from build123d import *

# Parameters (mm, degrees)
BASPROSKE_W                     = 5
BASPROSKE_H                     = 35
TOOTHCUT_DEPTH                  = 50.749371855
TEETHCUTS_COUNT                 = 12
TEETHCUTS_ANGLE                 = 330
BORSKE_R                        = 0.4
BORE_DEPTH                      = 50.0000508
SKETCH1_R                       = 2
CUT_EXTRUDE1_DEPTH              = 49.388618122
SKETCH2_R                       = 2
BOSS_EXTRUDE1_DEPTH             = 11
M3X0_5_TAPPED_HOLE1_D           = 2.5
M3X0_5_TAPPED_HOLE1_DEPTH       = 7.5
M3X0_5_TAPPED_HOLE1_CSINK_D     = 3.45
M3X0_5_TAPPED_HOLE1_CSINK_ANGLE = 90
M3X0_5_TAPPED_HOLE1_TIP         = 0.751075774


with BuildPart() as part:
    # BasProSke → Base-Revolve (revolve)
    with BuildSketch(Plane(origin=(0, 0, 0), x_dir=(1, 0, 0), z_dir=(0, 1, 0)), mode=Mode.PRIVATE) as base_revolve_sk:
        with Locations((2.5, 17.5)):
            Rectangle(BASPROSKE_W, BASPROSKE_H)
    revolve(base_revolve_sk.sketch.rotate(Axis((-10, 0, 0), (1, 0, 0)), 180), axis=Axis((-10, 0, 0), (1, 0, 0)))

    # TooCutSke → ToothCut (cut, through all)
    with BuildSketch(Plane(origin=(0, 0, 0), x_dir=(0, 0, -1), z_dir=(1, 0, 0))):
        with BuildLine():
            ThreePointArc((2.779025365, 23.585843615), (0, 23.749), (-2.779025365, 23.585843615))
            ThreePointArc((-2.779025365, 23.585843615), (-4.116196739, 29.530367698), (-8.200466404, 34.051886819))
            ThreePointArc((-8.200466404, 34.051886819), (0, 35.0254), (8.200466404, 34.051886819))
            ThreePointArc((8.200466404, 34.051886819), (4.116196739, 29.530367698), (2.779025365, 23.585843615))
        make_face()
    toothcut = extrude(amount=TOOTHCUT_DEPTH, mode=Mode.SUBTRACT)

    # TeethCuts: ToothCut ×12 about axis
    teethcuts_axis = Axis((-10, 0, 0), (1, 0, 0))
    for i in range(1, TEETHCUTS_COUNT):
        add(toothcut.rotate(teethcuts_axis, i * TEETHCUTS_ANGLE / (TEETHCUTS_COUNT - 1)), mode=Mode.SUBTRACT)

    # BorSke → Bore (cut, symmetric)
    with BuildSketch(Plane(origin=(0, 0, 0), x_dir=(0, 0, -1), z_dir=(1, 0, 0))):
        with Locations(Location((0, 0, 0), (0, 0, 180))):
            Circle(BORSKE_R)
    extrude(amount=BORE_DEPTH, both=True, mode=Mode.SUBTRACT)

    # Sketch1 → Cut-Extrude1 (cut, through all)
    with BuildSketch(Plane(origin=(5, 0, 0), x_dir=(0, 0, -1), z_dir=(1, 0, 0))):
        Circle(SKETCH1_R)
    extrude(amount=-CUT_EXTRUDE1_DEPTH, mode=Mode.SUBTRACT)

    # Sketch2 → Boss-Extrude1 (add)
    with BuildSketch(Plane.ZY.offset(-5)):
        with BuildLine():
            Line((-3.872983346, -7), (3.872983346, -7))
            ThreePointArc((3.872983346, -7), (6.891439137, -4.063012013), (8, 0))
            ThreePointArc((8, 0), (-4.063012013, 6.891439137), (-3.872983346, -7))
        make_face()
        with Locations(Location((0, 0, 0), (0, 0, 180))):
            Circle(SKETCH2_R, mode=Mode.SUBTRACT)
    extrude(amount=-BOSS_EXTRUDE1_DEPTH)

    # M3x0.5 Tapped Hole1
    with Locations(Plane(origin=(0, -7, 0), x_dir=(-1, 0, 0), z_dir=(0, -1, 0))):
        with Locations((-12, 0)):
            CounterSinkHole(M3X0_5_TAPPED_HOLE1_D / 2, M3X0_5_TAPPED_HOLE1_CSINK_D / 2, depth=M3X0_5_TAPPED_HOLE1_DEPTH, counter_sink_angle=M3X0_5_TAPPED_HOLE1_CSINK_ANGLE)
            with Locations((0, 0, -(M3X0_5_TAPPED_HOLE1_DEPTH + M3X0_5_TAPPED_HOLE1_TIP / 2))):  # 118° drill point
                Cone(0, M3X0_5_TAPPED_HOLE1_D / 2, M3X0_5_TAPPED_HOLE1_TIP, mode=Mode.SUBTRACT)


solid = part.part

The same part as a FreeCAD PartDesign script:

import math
import FreeCAD as App
import Part
import Sketcher


def add_polygon(sketch, points):
    """Adds a closed chain of lines whose ends are joined by coincident constraints."""
    first, n = sketch.GeometryCount, len(points)
    for a, b in zip(points, points[1:] + points[:1]):
        sketch.addGeometry(Part.LineSegment(App.Vector(*a, 0), App.Vector(*b, 0)), False)
    for i in range(n):
        sketch.addConstraint(Sketcher.Constraint("Coincident", first + i, 2, first + (i + 1) % n, 1))

doc = App.newDocument("Part")
params = doc.addObject("Spreadsheet::Sheet", "Params")
for row, (alias, value) in enumerate([
    ("sketch1_width", "5 mm"),
    ("sketch1_height", "35 mm"),
    ("revolution_angle", "360 deg"),
    ("sketch2_radius", "12 mm"),
    ("sketch3_diameter", "0.8 mm"),
    ("pocket2_length", "100.000102 mm"),
    ("sketch4_diameter", "4 mm"),
    ("sketch5_diameter", "4 mm"),
    ("sketch5_radius", "8 mm"),
    ("pad1_length", "11 mm"),
    ("sketch6_diameter", "2.5 mm"),
    ("hole_diameter", "2.5 mm"),
    ("hole_depth", "7.5 mm"),
    ("hole_csink_diameter", "3.45 mm"),
], start=1):
    params.set(f"A{row}", alias)
    params.set(f"B{row}", "=" + value)
    params.setAlias(f"B{row}", alias)

body = doc.addObject("PartDesign::Body", "Body")

# Sketch on XZ plane
sketch1 = doc.addObject("Sketcher::SketchObject", "Sketch")
body.addObject(sketch1)
sketch1.AttachmentSupport = (doc.XZ_Plane, [""])
sketch1.MapMode = "FlatFace"
add_polygon(sketch1, [(0, -35), (0, 0), (5, 0), (5, -35)])  # lines 0-3
sketch1.addConstraint([
    Sketcher.Constraint("Vertical", 0),
    Sketcher.Constraint("Horizontal", 1),
    Sketcher.Constraint("Vertical", 2),
    Sketcher.Constraint("Horizontal", 3),
    Sketcher.Constraint("Coincident", 0, 2, -1, 1),
    Sketcher.Constraint("DistanceX", 1, 1, 1, 2, 5.0),
    Sketcher.Constraint("DistanceY", 0, 1, 0, 2, 35.0),
])
sketch1.setExpression("Constraints[9]", "Params.sketch1_width")
sketch1.setExpression("Constraints[10]", "Params.sketch1_height")
revolution = doc.addObject("PartDesign::Revolution", "Revolution")
body.addObject(revolution)
revolution.Profile = sketch1
revolution.ReferenceAxis = (sketch1, ["H_Axis"])
revolution.setExpression("Angle", "Params.revolution_angle")

# Sketch on YZ plane
sketch2 = doc.addObject("Sketcher::SketchObject", "Sketch001")
body.addObject(sketch2)
sketch2.AttachmentSupport = (doc.YZ_Plane, [""])
sketch2.MapMode = "FlatFace"
sketch2.addGeometry([
    Part.ArcOfCircle(Part.Circle(App.Vector(0, 0, 0), App.Vector(0, 0, 1), 24), math.radians(-6.72), math.radians(6.72)),
    Part.ArcOfCircle(Part.Circle(App.Vector(24, -15, 0), App.Vector(0, 0, 1), 12), math.radians(33), math.radians(92)),
    Part.ArcOfCircle(Part.Circle(App.Vector(0, 0, 0), App.Vector(0, 0, 1), 35), math.radians(-14), math.radians(14)),
    Part.ArcOfCircle(Part.Circle(App.Vector(24, 15, 0), App.Vector(0, 0, 1), 12), math.radians(-92), math.radians(-33)),
], False)
sketch2.addConstraint([
    Sketcher.Constraint("Coincident", 0, 1, 1, 2),
    Sketcher.Constraint("Coincident", 1, 1, 2, 1),
    Sketcher.Constraint("Coincident", 2, 2, 3, 2),
    Sketcher.Constraint("Coincident", 3, 1, 0, 2),
    Sketcher.Constraint("Coincident", 0, 3, -1, 1),
    Sketcher.Constraint("Coincident", 2, 3, -1, 1),
    Sketcher.Constraint("Equal", 1, 3),
    Sketcher.Constraint("Symmetric", 1, 3, 3, 3, -1),
    Sketcher.Constraint("Radius", 1, 12.0),
    Sketcher.Constraint("Radius", 0, 23.749),
    Sketcher.Constraint("Radius", 2, 35.0254),
    Sketcher.Constraint("DistanceX", -1, 1, 1, 3, 24.010892),
    Sketcher.Constraint("DistanceY", 1, 3, 3, 3, 29.542991),
])
sketch2.setExpression("Constraints[8]", "Params.sketch2_radius")
pocket1 = doc.addObject("PartDesign::Pocket", "Pocket")
body.addObject(pocket1)
pocket1.Profile = sketch2
pocket1.Type = "ThroughAll"
pocket1.Reversed = True
doc.recompute()

polarpattern = doc.addObject("PartDesign::PolarPattern", "PolarPattern")
body.addObject(polarpattern)
polarpattern.Originals = [pocket1]
polarpattern.Axis = (doc.X_Axis, [""])
polarpattern.Angle = 360
polarpattern.Occurrences = 12
body.Tip = polarpattern

# Sketch on YZ plane
sketch3 = doc.addObject("Sketcher::SketchObject", "Sketch002")
body.addObject(sketch3)
sketch3.AttachmentSupport = (doc.YZ_Plane, [""])
sketch3.MapMode = "FlatFace"
sketch3.addGeometry(Part.Circle(App.Vector(0, 0, 0), App.Vector(0, 0, 1), 0.4), False)
sketch3.addConstraint([
    Sketcher.Constraint("Coincident", 0, 3, -1, 1),
    Sketcher.Constraint("Diameter", 0, 0.8),
])
sketch3.setExpression("Constraints[1]", "Params.sketch3_diameter")
pocket2 = doc.addObject("PartDesign::Pocket", "Pocket001")
body.addObject(pocket2)
pocket2.Profile = sketch3
pocket2.setExpression("Length", "Params.pocket2_length")
pocket2.Midplane = True

# Sketch on YZ plane
sketch4 = doc.addObject("Sketcher::SketchObject", "Sketch003")
body.addObject(sketch4)
sketch4.AttachmentSupport = (doc.YZ_Plane, [""])
sketch4.MapMode = "FlatFace"
sketch4.AttachmentOffset = App.Placement(App.Vector(0, 0, 5), App.Rotation())
sketch4.addGeometry(Part.Circle(App.Vector(0, 0, 0), App.Vector(0, 0, 1), 2), False)
sketch4.addConstraint([
    Sketcher.Constraint("Coincident", 0, 3, -1, 1),
    Sketcher.Constraint("Diameter", 0, 4.0),
])
sketch4.setExpression("Constraints[1]", "Params.sketch4_diameter")
pocket3 = doc.addObject("PartDesign::Pocket", "Pocket002")
body.addObject(pocket3)
pocket3.Profile = sketch4
pocket3.Type = "ThroughAll"

# Sketch on YZ plane
sketch5 = doc.addObject("Sketcher::SketchObject", "Sketch004")
body.addObject(sketch5)
sketch5.AttachmentSupport = (doc.YZ_Plane, [""])
sketch5.MapMode = "FlatFace"
sketch5.AttachmentOffset = App.Placement(App.Vector(0, 0, 5), App.Rotation())
sketch5.addGeometry([
    Part.LineSegment(App.Vector(-7, -3.9, 0), App.Vector(-7, 3.9, 0)),
    Part.ArcOfCircle(Part.Circle(App.Vector(0, 0, 0), App.Vector(0, 0, 1), 8), math.radians(90), math.radians(151)),
    Part.ArcOfCircle(Part.Circle(App.Vector(0, 0, 0), App.Vector(0, 0, 1), 8), math.radians(-151), math.radians(90)),
    Part.Circle(App.Vector(0, 0, 0), App.Vector(0, 0, 1), 2),
], False)
sketch5.addConstraint([
    Sketcher.Constraint("Coincident", 0, 2, 1, 2),
    Sketcher.Constraint("Tangent", 1, 1, 2, 2),
    Sketcher.Constraint("Coincident", 2, 1, 0, 1),
    Sketcher.Constraint("Vertical", 0),
    Sketcher.Constraint("Coincident", 1, 3, -1, 1),
    Sketcher.Constraint("Coincident", 3, 3, -1, 1),
    Sketcher.Constraint("Equal", 1, 2),
    Sketcher.Constraint("PointOnObject", 1, 1, -2),
    Sketcher.Constraint("Diameter", 3, 4.0),
    Sketcher.Constraint("Radius", 1, 8.0),
    Sketcher.Constraint("DistanceX", 0, 2, -1, 1, 7.0),
])
sketch5.setExpression("Constraints[8]", "Params.sketch5_diameter")
sketch5.setExpression("Constraints[9]", "Params.sketch5_radius")
pad1 = doc.addObject("PartDesign::Pad", "Pad")
body.addObject(pad1)
pad1.Profile = sketch5
pad1.setExpression("Length", "Params.pad1_length")

# Sketch on XZ plane
sketch6 = doc.addObject("Sketcher::SketchObject", "Sketch005")
body.addObject(sketch6)
sketch6.AttachmentSupport = (doc.XZ_Plane, [""])
sketch6.MapMode = "FlatFace"
sketch6.AttachmentOffset = App.Placement(App.Vector(0, 0, 7), App.Rotation())
sketch6.addGeometry(Part.Circle(App.Vector(12, 0, 0), App.Vector(0, 0, 1), 1.2), False)
sketch6.addConstraint([
    Sketcher.Constraint("PointOnObject", 0, 3, -1),
    Sketcher.Constraint("Diameter", 0, 2.5),
    Sketcher.Constraint("DistanceX", -1, 1, 0, 3, 12.0),
])
sketch6.setExpression("Constraints[1]", "Params.sketch6_diameter")
doc.recompute()
hole = doc.addObject("PartDesign::Hole", "Hole")
body.addObject(hole)
hole.Profile = sketch6
hole.ThreadType = "None"
hole.setExpression("Diameter", "Params.hole_diameter")
hole.DepthType = "Dimension"
hole.setExpression("Depth", "Params.hole_depth")
hole.DrillPoint = "Angled"
hole.DrillPointAngle = 118
hole.HoleCutType = "Countersink"
hole.setExpression("HoleCutDiameter", "Params.hole_csink_diameter")
hole.HoleCutCountersinkAngle = 90

doc.recompute()
